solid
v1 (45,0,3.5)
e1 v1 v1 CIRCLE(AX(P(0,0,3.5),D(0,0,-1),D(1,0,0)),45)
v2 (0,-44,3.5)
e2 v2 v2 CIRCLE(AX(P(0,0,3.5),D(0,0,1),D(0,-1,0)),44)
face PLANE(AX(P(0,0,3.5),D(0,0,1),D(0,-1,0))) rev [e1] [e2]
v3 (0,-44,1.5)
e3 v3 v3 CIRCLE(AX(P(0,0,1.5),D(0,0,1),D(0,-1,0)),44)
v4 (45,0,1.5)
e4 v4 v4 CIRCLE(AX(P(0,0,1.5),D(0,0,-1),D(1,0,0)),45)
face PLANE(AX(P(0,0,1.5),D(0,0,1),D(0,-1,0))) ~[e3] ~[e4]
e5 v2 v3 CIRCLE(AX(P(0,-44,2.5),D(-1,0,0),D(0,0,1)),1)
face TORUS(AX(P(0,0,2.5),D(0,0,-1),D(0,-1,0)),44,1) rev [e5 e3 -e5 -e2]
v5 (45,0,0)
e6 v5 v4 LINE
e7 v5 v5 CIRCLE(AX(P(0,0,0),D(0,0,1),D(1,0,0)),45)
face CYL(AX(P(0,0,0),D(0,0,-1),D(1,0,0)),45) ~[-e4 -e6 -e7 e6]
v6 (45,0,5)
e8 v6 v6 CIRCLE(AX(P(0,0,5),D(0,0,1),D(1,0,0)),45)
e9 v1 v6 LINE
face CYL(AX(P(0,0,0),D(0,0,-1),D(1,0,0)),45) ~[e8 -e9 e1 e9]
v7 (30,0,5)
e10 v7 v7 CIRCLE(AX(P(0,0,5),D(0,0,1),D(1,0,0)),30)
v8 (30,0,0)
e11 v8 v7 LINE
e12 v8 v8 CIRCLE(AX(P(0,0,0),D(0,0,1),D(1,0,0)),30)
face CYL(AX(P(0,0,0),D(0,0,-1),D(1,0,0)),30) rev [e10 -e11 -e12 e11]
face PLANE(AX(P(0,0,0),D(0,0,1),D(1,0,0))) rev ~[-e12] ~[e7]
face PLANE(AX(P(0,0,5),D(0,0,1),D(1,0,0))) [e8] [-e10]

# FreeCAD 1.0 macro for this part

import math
import FreeCAD as App
import Part
import Sketcher
from FreeCAD import Vector
Q = App.Units.Quantity

doc = App.newDocument("Part")
params = doc.addObject("Spreadsheet::Sheet", "Params")
for row, (alias, value) in enumerate([
    ("sketch1_diameter", "90 mm"),
    ("sketch1_diameter2", "60 mm"),
    ("pad1_length", "5 mm"),
    ("sketch2_radius", "1 mm"),
    ("sketch2_width", "1 mm"),
    ("groove_angle", "360 deg"),
], start=1):
    params.set(f"A{row}", alias)
    params.set(f"B{row}", "=" + value)
    params.setAlias(f"B{row}", alias)

body = doc.addObject("PartDesign::Body", "Body")

# Sketch on XY plane
sketch1 = doc.addObject("Sketcher::SketchObject", "Sketch")
body.addObject(sketch1)
sketch1.AttachmentSupport = (doc.XY_Plane, [""])
sketch1.MapMode = "FlatFace"
sketch1.addGeometry([
    Part.Circle(Vector(0, 0, 0), Vector(0, 0, 1), 45),
    Part.Circle(Vector(0, 0, 0), Vector(0, 0, 1), 30),
], False)
sketch1.addConstraint([
    Sketcher.Constraint("Coincident", 0, 3, -1, 1),
    Sketcher.Constraint("Coincident", 1, 3, -1, 1),
    Sketcher.Constraint("Diameter", 0, Q("90 mm")),
    Sketcher.Constraint("Diameter", 1, Q("60 mm")),
])
sketch1.setExpression("Constraints[2]", "Params.sketch1_diameter")
sketch1.setExpression("Constraints[3]", "Params.sketch1_diameter2")
pad1 = doc.addObject("PartDesign::Pad", "Pad")
body.addObject(pad1)
pad1.Profile = sketch1
pad1.setExpression("Length", "Params.pad1_length")

# Sketch on YZ plane
sketch2 = doc.addObject("Sketcher::SketchObject", "Sketch001")
body.addObject(sketch2)
sketch2.AttachmentSupport = (doc.YZ_Plane, [""])
sketch2.MapMode = "FlatFace"
sketch2.addGeometry([
    Part.LineSegment(Vector(-45, 1.5, 0), Vector(-44, 1.5, 0)),
    Part.ArcOfCircle(Part.Circle(Vector(-44, 2.5, 0), Vector(0, 0, 1), 1), math.radians(-90), math.radians(90)),
    Part.LineSegment(Vector(-44, 3.5, 0), Vector(-45, 3.5, 0)),
    Part.LineSegment(Vector(-45, 3.5, 0), Vector(-45, 1.5, 0)),
], False)
sketch2.addConstraint([
    Sketcher.Constraint("Tangent", 0, 2, 1, 1),
    Sketcher.Constraint("Tangent", 1, 2, 2, 1),
    Sketcher.Constraint("Coincident", 2, 2, 3, 1),
    Sketcher.Constraint("Coincident", 3, 2, 0, 1),
    Sketcher.Constraint("Horizontal", 0),
    Sketcher.Constraint("Horizontal", 2),
    Sketcher.Constraint("Vertical", 3),
    Sketcher.Constraint("Radius", 1, Q("1 mm")),
    Sketcher.Constraint("DistanceX", 0, 1, 0, 2, Q("1 mm")),
    Sketcher.Constraint("DistanceX", 1, 3, -1, 1, Q("44 mm")),
    Sketcher.Constraint("DistanceY", -1, 1, 1, 3, Q("2.5 mm")),
])
sketch2.setExpression("Constraints[7]", "Params.sketch2_radius")
sketch2.setExpression("Constraints[8]", "Params.sketch2_width")
groove = doc.addObject("PartDesign::Groove", "Groove")
body.addObject(groove)
groove.Profile = sketch2
groove.ReferenceAxis = (sketch2, ["V_Axis"])
groove.setExpression("Angle", "Params.groove_angle")

doc.recompute()
